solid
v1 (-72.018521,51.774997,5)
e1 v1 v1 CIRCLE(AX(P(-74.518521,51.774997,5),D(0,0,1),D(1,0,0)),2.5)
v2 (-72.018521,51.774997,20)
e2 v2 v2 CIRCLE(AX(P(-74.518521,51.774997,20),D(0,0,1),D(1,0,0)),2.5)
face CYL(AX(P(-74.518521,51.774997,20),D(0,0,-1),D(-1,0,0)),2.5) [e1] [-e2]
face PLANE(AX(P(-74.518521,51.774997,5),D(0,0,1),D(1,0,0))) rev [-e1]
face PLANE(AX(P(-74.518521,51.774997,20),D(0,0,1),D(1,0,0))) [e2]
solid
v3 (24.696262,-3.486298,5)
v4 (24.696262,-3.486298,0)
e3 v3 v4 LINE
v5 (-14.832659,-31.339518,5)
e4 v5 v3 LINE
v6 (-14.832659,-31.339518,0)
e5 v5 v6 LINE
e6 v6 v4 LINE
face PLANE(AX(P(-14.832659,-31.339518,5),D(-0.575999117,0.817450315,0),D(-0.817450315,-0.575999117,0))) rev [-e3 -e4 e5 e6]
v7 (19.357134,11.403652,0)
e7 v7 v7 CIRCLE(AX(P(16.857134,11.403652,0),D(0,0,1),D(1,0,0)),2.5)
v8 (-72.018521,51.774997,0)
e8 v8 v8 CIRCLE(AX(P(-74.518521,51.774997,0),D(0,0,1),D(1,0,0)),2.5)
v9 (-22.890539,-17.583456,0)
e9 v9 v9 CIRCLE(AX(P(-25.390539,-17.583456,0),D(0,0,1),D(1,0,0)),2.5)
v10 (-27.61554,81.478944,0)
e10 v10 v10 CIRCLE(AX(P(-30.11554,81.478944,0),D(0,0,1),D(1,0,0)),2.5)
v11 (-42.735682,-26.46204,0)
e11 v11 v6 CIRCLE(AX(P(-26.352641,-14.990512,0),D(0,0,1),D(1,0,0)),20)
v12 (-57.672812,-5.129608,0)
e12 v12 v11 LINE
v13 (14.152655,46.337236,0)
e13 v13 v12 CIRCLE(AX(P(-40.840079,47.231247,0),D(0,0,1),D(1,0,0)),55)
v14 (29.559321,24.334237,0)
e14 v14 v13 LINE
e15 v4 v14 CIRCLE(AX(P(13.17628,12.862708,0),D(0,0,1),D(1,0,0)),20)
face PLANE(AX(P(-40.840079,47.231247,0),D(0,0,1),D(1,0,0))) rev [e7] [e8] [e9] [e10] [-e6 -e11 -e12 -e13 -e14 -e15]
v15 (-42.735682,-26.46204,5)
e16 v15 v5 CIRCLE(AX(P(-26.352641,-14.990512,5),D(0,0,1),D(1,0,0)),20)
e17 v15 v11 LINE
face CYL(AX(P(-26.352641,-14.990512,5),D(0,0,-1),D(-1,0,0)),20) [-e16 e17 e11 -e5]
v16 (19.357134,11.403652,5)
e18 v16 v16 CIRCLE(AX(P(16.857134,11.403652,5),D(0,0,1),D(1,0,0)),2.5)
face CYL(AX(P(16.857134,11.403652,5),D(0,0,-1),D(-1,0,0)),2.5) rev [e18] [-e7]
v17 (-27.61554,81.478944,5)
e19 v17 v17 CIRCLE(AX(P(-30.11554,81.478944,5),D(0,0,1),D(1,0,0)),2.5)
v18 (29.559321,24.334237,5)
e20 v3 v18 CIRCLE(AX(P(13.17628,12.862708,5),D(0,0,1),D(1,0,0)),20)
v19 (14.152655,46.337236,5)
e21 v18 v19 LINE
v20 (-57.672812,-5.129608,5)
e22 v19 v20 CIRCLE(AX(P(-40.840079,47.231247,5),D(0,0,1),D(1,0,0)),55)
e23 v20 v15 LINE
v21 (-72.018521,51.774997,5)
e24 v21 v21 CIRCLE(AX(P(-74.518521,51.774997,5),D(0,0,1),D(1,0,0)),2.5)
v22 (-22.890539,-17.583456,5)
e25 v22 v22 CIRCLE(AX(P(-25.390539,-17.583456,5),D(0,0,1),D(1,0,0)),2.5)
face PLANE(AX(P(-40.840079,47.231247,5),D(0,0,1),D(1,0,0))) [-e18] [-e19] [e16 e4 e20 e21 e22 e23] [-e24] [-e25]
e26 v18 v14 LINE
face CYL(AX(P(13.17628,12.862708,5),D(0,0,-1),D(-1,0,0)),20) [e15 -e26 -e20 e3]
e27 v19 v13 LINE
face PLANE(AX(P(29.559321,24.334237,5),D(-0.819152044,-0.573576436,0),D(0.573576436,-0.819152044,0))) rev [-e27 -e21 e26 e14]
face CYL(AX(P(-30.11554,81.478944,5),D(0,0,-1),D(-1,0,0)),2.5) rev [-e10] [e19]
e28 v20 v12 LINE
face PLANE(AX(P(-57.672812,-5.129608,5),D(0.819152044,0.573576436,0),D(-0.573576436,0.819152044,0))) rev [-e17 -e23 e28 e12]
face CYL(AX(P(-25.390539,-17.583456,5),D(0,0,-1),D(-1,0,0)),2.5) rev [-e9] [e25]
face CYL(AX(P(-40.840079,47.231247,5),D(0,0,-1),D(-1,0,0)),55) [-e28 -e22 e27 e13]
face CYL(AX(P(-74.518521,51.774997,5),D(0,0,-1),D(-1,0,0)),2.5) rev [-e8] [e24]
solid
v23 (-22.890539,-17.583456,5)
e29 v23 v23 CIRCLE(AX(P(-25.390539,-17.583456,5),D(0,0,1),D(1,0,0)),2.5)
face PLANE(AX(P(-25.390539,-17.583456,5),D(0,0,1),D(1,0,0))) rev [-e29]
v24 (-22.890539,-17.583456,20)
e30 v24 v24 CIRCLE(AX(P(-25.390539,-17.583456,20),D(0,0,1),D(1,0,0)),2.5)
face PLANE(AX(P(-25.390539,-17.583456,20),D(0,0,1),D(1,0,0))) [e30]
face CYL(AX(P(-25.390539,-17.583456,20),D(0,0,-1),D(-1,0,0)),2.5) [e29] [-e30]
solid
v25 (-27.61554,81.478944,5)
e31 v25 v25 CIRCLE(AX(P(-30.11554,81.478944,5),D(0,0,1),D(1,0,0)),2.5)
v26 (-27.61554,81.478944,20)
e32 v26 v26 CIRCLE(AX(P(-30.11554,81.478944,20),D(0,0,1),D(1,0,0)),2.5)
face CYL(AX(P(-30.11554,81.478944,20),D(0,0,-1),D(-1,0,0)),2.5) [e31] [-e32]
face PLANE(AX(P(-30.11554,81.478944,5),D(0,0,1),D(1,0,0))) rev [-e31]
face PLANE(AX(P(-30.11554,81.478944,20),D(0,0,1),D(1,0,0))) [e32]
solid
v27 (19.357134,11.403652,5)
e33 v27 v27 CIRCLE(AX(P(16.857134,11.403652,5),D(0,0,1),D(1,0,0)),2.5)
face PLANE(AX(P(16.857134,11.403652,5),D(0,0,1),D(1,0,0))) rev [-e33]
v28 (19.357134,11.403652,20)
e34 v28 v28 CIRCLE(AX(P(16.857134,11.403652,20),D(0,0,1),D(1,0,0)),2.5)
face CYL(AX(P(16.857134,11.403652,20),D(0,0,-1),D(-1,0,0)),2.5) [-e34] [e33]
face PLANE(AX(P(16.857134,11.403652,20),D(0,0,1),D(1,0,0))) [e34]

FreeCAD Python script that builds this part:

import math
import FreeCAD as App
import Part
import Sketcher
from FreeCAD import Vector
Q = App.Units.Quantity

doc = App.newDocument("Part")
params = doc.addObject("Spreadsheet::Sheet", "Params")
for row, (alias, value) in enumerate([
    ("sketch1_diameter", "5 mm"),
    ("sketch1_radius", "20 mm"),
    ("sketch1_radius2", "55 mm"),
    ("pad1_length", "5 mm"),
    ("sketch2_diameter", "5 mm"),
    ("pad2_length", "15 mm"),
    ("sketch3_diameter", "5 mm"),
    ("pad3_length", "15 mm"),
    ("sketch4_diameter", "5 mm"),
    ("pad4_length", "15 mm"),
    ("sketch5_diameter", "5 mm"),
    ("pad5_length", "15 mm"),
], start=1):
    params.set(f"A{row}", alias)
    params.set(f"B{row}", "=" + value)
    params.setAlias(f"B{row}", alias)

body = doc.addObject("PartDesign::Body", "Body")

# Sketch on XY plane
sketch1 = body.newObject("Sketcher::SketchObject", "Sketch")
sketch1.AttachmentSupport = (doc.getObject("XY_Plane"), [""])
sketch1.MapMode = "FlatFace"
sketch1.addGeometry(Part.LineSegment(Vector(-57.7, -5.1, 0), Vector(-42.7, -26.5, 0)), False)
sketch1.addGeometry(Part.ArcOfCircle(Part.Circle(Vector(-26.4, -15, 0), Vector(0, 0, 1), 20), math.radians(-145), math.radians(-55)), False)
sketch1.addGeometry(Part.LineSegment(Vector(-14.8, -31.3, 0), Vector(24.7, -3.5, 0)), False)
sketch1.addGeometry(Part.ArcOfCircle(Part.Circle(Vector(13.2, 12.9, 0), Vector(0, 0, 1), 20), math.radians(-55), math.radians(35)), False)
sketch1.addGeometry(Part.LineSegment(Vector(29.6, 24.3, 0), Vector(14.2, 46.3, 0)), False)
sketch1.addGeometry(Part.ArcOfCircle(Part.Circle(Vector(-40.8, 47.2, 0), Vector(0, 0, 1), 55), math.radians(-1), math.radians(252)), False)
sketch1.addGeometry(Part.Circle(Vector(-25.4, -17.6, 0), Vector(0, 0, 1), 2.5), False)
sketch1.addGeometry(Part.Circle(Vector(16.9, 11.4, 0), Vector(0, 0, 1), 2.5), False)
sketch1.addGeometry(Part.Circle(Vector(-74.5, 51.8, 0), Vector(0, 0, 1), 2.5), False)
sketch1.addGeometry(Part.Circle(Vector(-30.1, 81.5, 0), Vector(0, 0, 1), 2.5), False)
sketch1.addConstraint(Sketcher.Constraint("Tangent", 0, 2, 1, 1))
sketch1.addConstraint(Sketcher.Constraint("Tangent", 1, 2, 2, 1))
sketch1.addConstraint(Sketcher.Constraint("Tangent", 2, 2, 3, 1))
sketch1.addConstraint(Sketcher.Constraint("Tangent", 3, 2, 4, 1))
sketch1.addConstraint(Sketcher.Constraint("Coincident", 4, 2, 5, 1))
sketch1.addConstraint(Sketcher.Constraint("Coincident", 5, 2, 0, 1))
sketch1.addConstraint(Sketcher.Constraint("Equal", 1, 3))
sketch1.addConstraint(Sketcher.Constraint("Equal", 6, 7))
sketch1.addConstraint(Sketcher.Constraint("Equal", 7, 8))
sketch1.addConstraint(Sketcher.Constraint("Equal", 8, 9))
sketch1.addConstraint(Sketcher.Constraint("Parallel", 0, 4))
sketch1.addConstraint(Sketcher.Constraint("Diameter", 6, 5.0))
sketch1.addConstraint(Sketcher.Constraint("Radius", 1, 20.0))
sketch1.addConstraint(Sketcher.Constraint("Radius", 5, 55.0))
sketch1.addConstraint(Sketcher.Constraint("Angle", 0, Q("-55 deg")))
sketch1.addConstraint(Sketcher.Constraint("DistanceY", 3, 2, 4, 2, 22.002999))
sketch1.addConstraint(Sketcher.Constraint("DistanceY", 2, 2, -1, 1, 3.486298))
sketch1.addConstraint(Sketcher.Constraint("DistanceX", 1, 3, 6, 3, 0.962102))
sketch1.addConstraint(Sketcher.Constraint("DistanceX", 8, 3, 3, 3, 87.694801))
sketch1.addConstraint(Sketcher.Constraint("DistanceX", 9, 3, 1, 3, 3.762899))
sketch1.addConstraint(Sketcher.Constraint("DistanceX", 6, 3, 2, 2, 50.086801))
sketch1.addConstraint(Sketcher.Constraint("Distance", 0, 26.042091))
sketch1.addConstraint(Sketcher.Constraint("Distance", 2, 48.356359))
sketch1.addConstraint(Sketcher.Constraint("DistanceX", 1, 3, -1, 1, 26.352641))
sketch1.addConstraint(Sketcher.Constraint("DistanceY", 6, 3, 7, 3, 28.987108))
sketch1.addConstraint(Sketcher.Constraint("DistanceY", 5, 3, 8, 3, 4.543751))
sketch1.addConstraint(Sketcher.Constraint("DistanceY", 7, 3, 9, 3, 70.075291))
sketch1.addConstraint(Sketcher.Constraint("DistanceY", 1, 2, 7, 3, 42.74317))
sketch1.addConstraint(Sketcher.Constraint("DistanceX", 4, 2, 7, 3, 2.70448))
sketch1.setExpression("Constraints[11]", "Params.sketch1_diameter")
sketch1.setExpression("Constraints[12]", "Params.sketch1_radius")
sketch1.setExpression("Constraints[13]", "Params.sketch1_radius2")
pad1 = body.newObject("PartDesign::Pad", "Pad")
pad1.Profile = sketch1
pad1.setExpression("Length", "Params.pad1_length")
body2 = doc.addObject("PartDesign::Body", "Body001")

# Sketch on XY plane
sketch2 = body2.newObject("Sketcher::SketchObject", "Sketch001")
sketch2.AttachmentSupport = (doc.getObject("XY_Plane001"), [""])
sketch2.MapMode = "FlatFace"
sketch2.AttachmentOffset = App.Placement(Vector(0, 0, 5), App.Rotation())
sketch2.addGeometry(Part.Circle(Vector(16.9, 11.4, 0), Vector(0, 0, 1), 2.5), False)
sketch2.addConstraint(Sketcher.Constraint("Diameter", 0, 5.0))
sketch2.addConstraint(Sketcher.Constraint("DistanceX", -1, 1, 0, 3, 16.857134))
sketch2.addConstraint(Sketcher.Constraint("DistanceY", -1, 1, 0, 3, 11.403652))
sketch2.setExpression("Constraints[0]", "Params.sketch2_diameter")
pad2 = body2.newObject("PartDesign::Pad", "Pad001")
pad2.Profile = sketch2
pad2.setExpression("Length", "Params.pad2_length")
body3 = doc.addObject("PartDesign::Body", "Body002")

# Sketch on XY plane
sketch3 = body3.newObject("Sketcher::SketchObject", "Sketch002")
sketch3.AttachmentSupport = (doc.getObject("XY_Plane002"), [""])
sketch3.MapMode = "FlatFace"
sketch3.AttachmentOffset = App.Placement(Vector(0, 0, 5), App.Rotation())
sketch3.addGeometry(Part.Circle(Vector(-25.4, -17.6, 0), Vector(0, 0, 1), 2.5), False)
sketch3.addConstraint(Sketcher.Constraint("Diameter", 0, 5.0))
sketch3.addConstraint(Sketcher.Constraint("DistanceX", 0, 3, -1, 1, 25.390539))
sketch3.addConstraint(Sketcher.Constraint("DistanceY", 0, 3, -1, 1, 17.583456))
sketch3.setExpression("Constraints[0]", "Params.sketch3_diameter")
pad3 = body3.newObject("PartDesign::Pad", "Pad002")
pad3.Profile = sketch3
pad3.setExpression("Length", "Params.pad3_length")
body4 = doc.addObject("PartDesign::Body", "Body003")

# Sketch on XY plane
sketch4 = body4.newObject("Sketcher::SketchObject", "Sketch003")
sketch4.AttachmentSupport = (doc.getObject("XY_Plane003"), [""])
sketch4.MapMode = "FlatFace"
sketch4.AttachmentOffset = App.Placement(Vector(0, 0, 5), App.Rotation())
sketch4.addGeometry(Part.Circle(Vector(-30.1, 81.5, 0), Vector(0, 0, 1), 2.5), False)
sketch4.addConstraint(Sketcher.Constraint("Diameter", 0, 5.0))
sketch4.addConstraint(Sketcher.Constraint("DistanceX", 0, 3, -1, 1, 30.11554))
sketch4.addConstraint(Sketcher.Constraint("DistanceY", -1, 1, 0, 3, 81.478944))
sketch4.setExpression("Constraints[0]", "Params.sketch4_diameter")
pad4 = body4.newObject("PartDesign::Pad", "Pad003")
pad4.Profile = sketch4
pad4.setExpression("Length", "Params.pad4_length")
body5 = doc.addObject("PartDesign::Body", "Body004")

# Sketch on XY plane
sketch5 = body5.newObject("Sketcher::SketchObject", "Sketch004")
sketch5.AttachmentSupport = (doc.getObject("XY_Plane004"), [""])
sketch5.MapMode = "FlatFace"
sketch5.AttachmentOffset = App.Placement(Vector(0, 0, 5), App.Rotation())
sketch5.addGeometry(Part.Circle(Vector(-74.5, 51.8, 0), Vector(0, 0, 1), 2.5), False)
sketch5.addConstraint(Sketcher.Constraint("Diameter", 0, 5.0))
sketch5.addConstraint(Sketcher.Constraint("DistanceX", 0, 3, -1, 1, 74.518521))
sketch5.addConstraint(Sketcher.Constraint("DistanceY", -1, 1, 0, 3, 51.774997))
sketch5.setExpression("Constraints[0]", "Params.sketch5_diameter")
pad5 = body5.newObject("PartDesign::Pad", "Pad004")
pad5.Profile = sketch5
pad5.setExpression("Length", "Params.pad5_length")

doc.recompute()
